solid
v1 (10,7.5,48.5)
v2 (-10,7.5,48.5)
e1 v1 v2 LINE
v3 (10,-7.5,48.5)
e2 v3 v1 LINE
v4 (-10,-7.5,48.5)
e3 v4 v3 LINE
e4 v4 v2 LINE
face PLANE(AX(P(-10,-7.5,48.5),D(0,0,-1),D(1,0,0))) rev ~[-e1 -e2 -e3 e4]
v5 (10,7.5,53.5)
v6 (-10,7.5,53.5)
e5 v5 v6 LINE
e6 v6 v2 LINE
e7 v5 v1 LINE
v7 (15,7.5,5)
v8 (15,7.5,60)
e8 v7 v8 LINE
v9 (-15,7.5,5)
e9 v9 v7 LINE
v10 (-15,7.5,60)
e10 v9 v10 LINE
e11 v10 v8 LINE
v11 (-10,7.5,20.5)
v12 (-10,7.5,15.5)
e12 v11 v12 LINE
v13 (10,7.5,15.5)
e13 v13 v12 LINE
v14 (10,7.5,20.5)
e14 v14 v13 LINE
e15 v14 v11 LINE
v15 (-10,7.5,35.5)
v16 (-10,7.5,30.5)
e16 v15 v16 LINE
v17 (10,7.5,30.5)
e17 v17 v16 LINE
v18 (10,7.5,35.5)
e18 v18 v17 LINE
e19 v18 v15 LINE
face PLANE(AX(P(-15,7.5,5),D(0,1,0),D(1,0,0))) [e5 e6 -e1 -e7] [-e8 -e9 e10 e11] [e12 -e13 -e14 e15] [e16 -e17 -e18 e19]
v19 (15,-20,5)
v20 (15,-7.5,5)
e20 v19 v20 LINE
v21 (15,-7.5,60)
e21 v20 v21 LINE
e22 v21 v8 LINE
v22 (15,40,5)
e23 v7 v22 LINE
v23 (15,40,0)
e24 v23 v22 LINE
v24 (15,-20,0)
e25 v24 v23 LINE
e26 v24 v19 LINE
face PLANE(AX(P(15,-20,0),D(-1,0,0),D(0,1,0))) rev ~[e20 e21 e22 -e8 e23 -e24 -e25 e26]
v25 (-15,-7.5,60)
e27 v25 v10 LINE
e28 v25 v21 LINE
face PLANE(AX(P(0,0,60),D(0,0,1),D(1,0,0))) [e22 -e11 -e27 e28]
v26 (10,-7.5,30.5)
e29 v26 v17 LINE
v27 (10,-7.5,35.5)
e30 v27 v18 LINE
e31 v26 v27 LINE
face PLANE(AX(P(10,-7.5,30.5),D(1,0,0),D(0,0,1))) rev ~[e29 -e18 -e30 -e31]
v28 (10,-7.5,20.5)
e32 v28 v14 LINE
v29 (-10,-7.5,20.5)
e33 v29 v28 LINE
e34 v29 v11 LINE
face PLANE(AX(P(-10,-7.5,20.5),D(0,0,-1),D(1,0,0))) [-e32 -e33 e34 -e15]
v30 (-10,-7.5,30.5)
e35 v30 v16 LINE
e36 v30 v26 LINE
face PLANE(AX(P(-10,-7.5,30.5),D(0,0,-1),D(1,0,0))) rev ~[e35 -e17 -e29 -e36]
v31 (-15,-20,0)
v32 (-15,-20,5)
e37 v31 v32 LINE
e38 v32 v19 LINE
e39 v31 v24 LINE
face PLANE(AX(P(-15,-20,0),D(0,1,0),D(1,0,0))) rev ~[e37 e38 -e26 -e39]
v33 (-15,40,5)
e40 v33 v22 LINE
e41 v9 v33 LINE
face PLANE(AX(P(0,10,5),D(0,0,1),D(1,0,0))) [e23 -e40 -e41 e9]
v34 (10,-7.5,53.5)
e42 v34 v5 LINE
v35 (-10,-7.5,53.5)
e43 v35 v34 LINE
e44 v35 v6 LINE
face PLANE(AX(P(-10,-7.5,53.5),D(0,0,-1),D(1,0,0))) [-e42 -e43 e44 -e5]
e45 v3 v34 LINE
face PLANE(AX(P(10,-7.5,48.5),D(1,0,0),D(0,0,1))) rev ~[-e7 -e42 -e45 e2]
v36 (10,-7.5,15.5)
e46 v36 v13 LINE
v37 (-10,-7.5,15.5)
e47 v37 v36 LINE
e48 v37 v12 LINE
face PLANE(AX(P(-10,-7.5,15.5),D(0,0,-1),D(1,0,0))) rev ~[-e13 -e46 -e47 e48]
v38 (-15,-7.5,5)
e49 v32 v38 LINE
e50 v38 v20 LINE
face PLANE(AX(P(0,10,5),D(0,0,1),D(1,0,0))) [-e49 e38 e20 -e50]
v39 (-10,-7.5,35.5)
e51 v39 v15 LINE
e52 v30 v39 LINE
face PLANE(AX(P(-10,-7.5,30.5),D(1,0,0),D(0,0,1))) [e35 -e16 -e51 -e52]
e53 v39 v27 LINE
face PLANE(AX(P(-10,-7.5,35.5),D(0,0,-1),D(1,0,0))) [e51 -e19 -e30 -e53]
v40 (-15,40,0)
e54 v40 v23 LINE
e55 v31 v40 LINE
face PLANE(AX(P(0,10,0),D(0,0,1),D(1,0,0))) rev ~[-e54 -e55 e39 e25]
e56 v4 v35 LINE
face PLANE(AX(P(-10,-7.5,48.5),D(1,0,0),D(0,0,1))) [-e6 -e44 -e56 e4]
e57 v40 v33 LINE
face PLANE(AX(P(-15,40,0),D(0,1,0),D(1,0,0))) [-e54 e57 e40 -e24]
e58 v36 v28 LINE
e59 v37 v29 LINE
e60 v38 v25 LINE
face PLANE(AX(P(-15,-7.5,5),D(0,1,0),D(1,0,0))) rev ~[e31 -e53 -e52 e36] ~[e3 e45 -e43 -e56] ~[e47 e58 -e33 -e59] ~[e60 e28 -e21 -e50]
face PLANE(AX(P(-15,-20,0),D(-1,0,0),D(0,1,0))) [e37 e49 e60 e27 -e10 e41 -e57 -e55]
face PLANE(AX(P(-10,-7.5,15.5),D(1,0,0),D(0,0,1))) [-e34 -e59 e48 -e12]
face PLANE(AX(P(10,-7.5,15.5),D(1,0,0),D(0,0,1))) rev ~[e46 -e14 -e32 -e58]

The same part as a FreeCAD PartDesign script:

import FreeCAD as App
import Part
import Sketcher

V = App.Vector


def add_polygon(sketch, points):
    """Adds a closed chain of lines whose ends are joined by coincident constraints."""
    first, n = sketch.GeometryCount, len(points)
    for a, b in zip(points, points[1:] + points[:1]):
        sketch.addGeometry(Part.LineSegment(App.Vector(*a, 0), App.Vector(*b, 0)), False)
    for i in range(n):
        sketch.addConstraint(Sketcher.Constraint("Coincident", first + i, 2, first + (i + 1) % n, 1))

doc = App.newDocument("Part")
body = doc.addObject("PartDesign::Body", "Body")

sketch1 = body.newObject("Sketcher::SketchObject", "Sketch")
sketch1.AttachmentSupport = (doc.getObject("XY_Plane"), [""])
sketch1.MapMode = "FlatFace"
add_polygon(sketch1, [(-15, 40), (-15, -20), (15, -20), (15, 40)])
sketch1.addConstraint(Sketcher.Constraint("Vertical", 0))
sketch1.addConstraint(Sketcher.Constraint("Horizontal", 1))
sketch1.addConstraint(Sketcher.Constraint("Vertical", 2))
sketch1.addConstraint(Sketcher.Constraint("Horizontal", 3))
sketch1.addConstraint(Sketcher.Constraint("DistanceX", 1, 1, 1, 2, 30.0))
sketch1.addConstraint(Sketcher.Constraint("DistanceY", 0, 2, 0, 1, 60.0))
sketch1.addConstraint(Sketcher.Constraint("DistanceX", 0, 2, -1, 1, 15.0))
sketch1.addConstraint(Sketcher.Constraint("DistanceY", 0, 2, -1, 1, 20.0))
pad1 = body.newObject("PartDesign::Pad", "Pad")
pad1.Profile = sketch1
pad1.Length = 5

sketch2 = body.newObject("Sketcher::SketchObject", "Sketch001")
sketch2.AttachmentSupport = (doc.getObject("XY_Plane"), [""])
sketch2.MapMode = "FlatFace"
sketch2.AttachmentOffset = App.Placement(V(0, 0, 5), App.Rotation())
add_polygon(sketch2, [(-15, 8), (-15, -8), (15, -8), (15, 8)])
sketch2.addConstraint(Sketcher.Constraint("Vertical", 0))
sketch2.addConstraint(Sketcher.Constraint("Horizontal", 1))
sketch2.addConstraint(Sketcher.Constraint("Vertical", 2))
sketch2.addConstraint(Sketcher.Constraint("Horizontal", 3))
sketch2.addConstraint(Sketcher.Constraint("Symmetric", 0, 2, 2, 2, -1, 1))
sketch2.addConstraint(Sketcher.Constraint("DistanceX", 1, 1, 1, 2, 30.0))
sketch2.addConstraint(Sketcher.Constraint("DistanceY", 0, 2, 0, 1, 15.0))
pad2 = body.newObject("PartDesign::Pad", "Pad001")
pad2.Profile = sketch2
pad2.Length = 55

sketch3 = body.newObject("Sketcher::SketchObject", "Sketch002")
sketch3.AttachmentSupport = (doc.getObject("XZ_Plane"), [""])
sketch3.MapMode = "FlatFace"
sketch3.AttachmentOffset = App.Placement(V(0, 0, 7.5), App.Rotation())
add_polygon(sketch3, [(-10, 54), (-10, 48), (10, 48), (10, 54)])
add_polygon(sketch3, [(-10, 36), (-10, 30), (10, 30), (10, 36)])
add_polygon(sketch3, [(-10, 20), (-10, 16), (10, 16), (10, 20)])
sketch3.addConstraint(Sketcher.Constraint("Vertical", 0))
sketch3.addConstraint(Sketcher.Constraint("Horizontal", 1))
sketch3.addConstraint(Sketcher.Constraint("Vertical", 2))
sketch3.addConstraint(Sketcher.Constraint("Horizontal", 3))
sketch3.addConstraint(Sketcher.Constraint("Vertical", 4))
sketch3.addConstraint(Sketcher.Constraint("Horizontal", 5))
sketch3.addConstraint(Sketcher.Constraint("Vertical", 6))
sketch3.addConstraint(Sketcher.Constraint("Horizontal", 7))
sketch3.addConstraint(Sketcher.Constraint("Vertical", 8))
sketch3.addConstraint(Sketcher.Constraint("Horizontal", 9))
sketch3.addConstraint(Sketcher.Constraint("Vertical", 10))
sketch3.addConstraint(Sketcher.Constraint("Horizontal", 11))
sketch3.addConstraint(Sketcher.Constraint("Vertical", 3, 2, 4, 2))
sketch3.addConstraint(Sketcher.Constraint("Vertical", 2, 2, 5, 2))
sketch3.addConstraint(Sketcher.Constraint("Vertical", 7, 2, 8, 2))
sketch3.addConstraint(Sketcher.Constraint("Vertical", 6, 2, 9, 2))
sketch3.addConstraint(Sketcher.Constraint("Equal", 2, 4))
sketch3.addConstraint(Sketcher.Constraint("Equal", 6, 8))
sketch3.addConstraint(Sketcher.Constraint("DistanceX", 1, 1, 1, 2, 20.0))
sketch3.addConstraint(Sketcher.Constraint("DistanceY", 0, 2, 0, 1, 5.0))
sketch3.addConstraint(Sketcher.Constraint("DistanceX", 0, 2, -1, 1, 10.0))
sketch3.addConstraint(Sketcher.Constraint("DistanceY", 4, 2, 0, 2, 18.0))
sketch3.addConstraint(Sketcher.Constraint("DistanceY", 8, 2, 4, 2, 15.0))
sketch3.addConstraint(Sketcher.Constraint("DistanceY", -1, 1, 0, 2, 48.5))
pocket1 = body.newObject("PartDesign::Pocket", "Pocket")
pocket1.Profile = sketch3
pocket1.Type = "ThroughAll"

doc.recompute()
